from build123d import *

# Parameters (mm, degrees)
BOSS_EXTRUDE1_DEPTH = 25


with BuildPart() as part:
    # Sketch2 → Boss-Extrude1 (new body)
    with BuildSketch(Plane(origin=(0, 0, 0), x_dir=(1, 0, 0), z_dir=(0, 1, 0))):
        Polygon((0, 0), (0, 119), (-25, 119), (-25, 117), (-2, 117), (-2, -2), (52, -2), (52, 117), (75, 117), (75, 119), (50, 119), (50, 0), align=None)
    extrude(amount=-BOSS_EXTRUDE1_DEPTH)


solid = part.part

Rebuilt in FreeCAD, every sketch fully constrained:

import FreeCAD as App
import Part
import Sketcher
from FreeCAD import Vector
Q = App.Units.Quantity


def add_polygon(sketch, points):
    """Adds a closed chain of lines whose ends are joined by coincident constraints."""
    first, n = sketch.GeometryCount, len(points)
    for a, b in zip(points, points[1:] + points[:1]):
        sketch.addGeometry(Part.LineSegment(App.Vector(*a, 0), App.Vector(*b, 0)), False)
    for i in range(n):
        sketch.addConstraint(Sketcher.Constraint("Coincident", first + i, 2, first + (i + 1) % n, 1))

doc = App.newDocument("Part")
body = doc.addObject("PartDesign::Body", "Body")

sketch1 = doc.addObject("Sketcher::SketchObject", "Sketch")
body.addObject(sketch1)
sketch1.AttachmentSupport = (doc.XZ_Plane, [""])
sketch1.MapMode = "FlatFace"
add_polygon(sketch1, [(0, 0), (0, -119), (-25, -119), (-25, -117), (-2, -117), (-2, 2), (52, 2), (52, -117), (75, -117), (75, -119), (50, -119), (50, 0)])
sketch1.addConstraint([
    Sketcher.Constraint("Vertical", 0),
    Sketcher.Constraint("Horizontal", 1),
    Sketcher.Constraint("Vertical", 2),
    Sketcher.Constraint("Horizontal", 3),
    Sketcher.Constraint("Vertical", 4),
    Sketcher.Constraint("Horizontal", 5),
    Sketcher.Constraint("Vertical", 6),
    Sketcher.Constraint("Horizontal", 7),
    Sketcher.Constraint("Vertical", 8),
    Sketcher.Constraint("Horizontal", 9),
    Sketcher.Constraint("Vertical", 10),
    Sketcher.Constraint("Horizontal", 11),
    Sketcher.Constraint("Coincident", 11, 2, -1, 1),
    Sketcher.Constraint("Horizontal", 3, 2, 6, 2),
    Sketcher.Constraint("Horizontal", 1, 2, 8, 2),
    Sketcher.Constraint("Equal", 3, 7),
    Sketcher.Constraint("Equal", 1, 9),
    Sketcher.Constraint("Equal", 0, 4),
    Sketcher.Constraint("DistanceX", 1, 2, 1, 1, Q("25 mm")),
    Sketcher.Constraint("DistanceX", 3, 1, 3, 2, Q("23 mm")),
    Sketcher.Constraint("DistanceX", 5, 1, 5, 2, Q("54 mm")),
    Sketcher.Constraint("DistanceY", 0, 2, 0, 1, Q("119 mm")),
    Sketcher.Constraint("DistanceY", 2, 1, 2, 2, Q("2 mm")),
])
pad1 = doc.addObject("PartDesign::Pad", "Pad")
body.addObject(pad1)
pad1.Profile = sketch1
pad1.Length = 25

doc.recompute()
